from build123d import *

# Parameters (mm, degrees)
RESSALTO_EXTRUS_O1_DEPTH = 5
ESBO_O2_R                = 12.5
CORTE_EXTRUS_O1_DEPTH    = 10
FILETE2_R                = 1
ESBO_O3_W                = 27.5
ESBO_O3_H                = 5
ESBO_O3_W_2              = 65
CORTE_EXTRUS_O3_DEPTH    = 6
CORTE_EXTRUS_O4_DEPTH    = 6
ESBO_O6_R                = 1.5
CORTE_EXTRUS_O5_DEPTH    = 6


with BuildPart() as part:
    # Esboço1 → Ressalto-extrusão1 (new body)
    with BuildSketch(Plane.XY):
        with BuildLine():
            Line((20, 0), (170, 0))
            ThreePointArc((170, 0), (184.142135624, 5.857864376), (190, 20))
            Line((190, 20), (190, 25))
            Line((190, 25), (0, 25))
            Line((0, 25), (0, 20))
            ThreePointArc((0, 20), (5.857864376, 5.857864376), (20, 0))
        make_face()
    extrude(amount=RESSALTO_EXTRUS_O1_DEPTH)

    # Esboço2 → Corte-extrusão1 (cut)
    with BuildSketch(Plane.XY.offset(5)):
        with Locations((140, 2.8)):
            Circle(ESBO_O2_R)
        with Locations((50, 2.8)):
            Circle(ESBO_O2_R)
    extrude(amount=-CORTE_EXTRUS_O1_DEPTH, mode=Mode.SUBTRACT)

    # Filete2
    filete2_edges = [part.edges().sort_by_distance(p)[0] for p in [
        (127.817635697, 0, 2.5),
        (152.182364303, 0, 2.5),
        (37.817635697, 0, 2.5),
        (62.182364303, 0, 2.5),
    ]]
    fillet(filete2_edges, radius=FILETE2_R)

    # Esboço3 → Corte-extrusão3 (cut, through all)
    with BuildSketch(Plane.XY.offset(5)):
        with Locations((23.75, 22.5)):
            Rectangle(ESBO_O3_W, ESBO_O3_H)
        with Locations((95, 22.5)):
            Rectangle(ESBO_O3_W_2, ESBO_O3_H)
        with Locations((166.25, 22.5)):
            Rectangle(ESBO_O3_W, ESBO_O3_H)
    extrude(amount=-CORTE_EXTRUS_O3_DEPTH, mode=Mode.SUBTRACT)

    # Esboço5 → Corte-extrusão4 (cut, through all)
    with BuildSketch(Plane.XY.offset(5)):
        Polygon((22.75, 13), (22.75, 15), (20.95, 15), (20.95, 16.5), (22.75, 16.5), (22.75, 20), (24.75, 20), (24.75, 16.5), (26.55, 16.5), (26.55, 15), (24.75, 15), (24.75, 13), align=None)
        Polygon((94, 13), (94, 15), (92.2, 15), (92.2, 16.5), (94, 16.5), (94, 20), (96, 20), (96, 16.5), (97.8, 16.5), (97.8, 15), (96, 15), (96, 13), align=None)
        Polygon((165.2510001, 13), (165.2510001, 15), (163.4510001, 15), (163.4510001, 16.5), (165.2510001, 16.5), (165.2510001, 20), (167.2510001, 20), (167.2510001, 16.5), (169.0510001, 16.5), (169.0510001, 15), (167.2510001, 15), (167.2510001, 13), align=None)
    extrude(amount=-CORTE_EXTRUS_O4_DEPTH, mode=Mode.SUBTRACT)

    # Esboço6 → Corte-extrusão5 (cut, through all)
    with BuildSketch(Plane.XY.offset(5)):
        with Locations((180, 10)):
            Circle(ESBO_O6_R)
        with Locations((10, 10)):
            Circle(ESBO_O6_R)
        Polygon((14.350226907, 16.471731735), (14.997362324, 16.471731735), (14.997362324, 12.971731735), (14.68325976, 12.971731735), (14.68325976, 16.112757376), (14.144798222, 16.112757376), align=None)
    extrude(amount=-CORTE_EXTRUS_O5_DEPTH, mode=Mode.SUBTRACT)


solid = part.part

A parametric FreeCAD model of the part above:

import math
import FreeCAD as App
import Part
import Sketcher
Q = App.Units.Quantity


def edges_at(feature, points):
    """Names of the edges that pass closest to the given points."""
    edges = feature.Shape.Edges
    near = lambda p: min(range(len(edges)), key=lambda i: edges[i].distToShape(Part.Vertex(*p))[0])
    return sorted({f"Edge{near(p) + 1}" for p in points})


def add_polygon(sketch, points):
    """Adds a closed chain of lines whose ends are joined by coincident constraints."""
    first, n = sketch.GeometryCount, len(points)
    for a, b in zip(points, points[1:] + points[:1]):
        sketch.addGeometry(Part.LineSegment(App.Vector(*a, 0), App.Vector(*b, 0)), False)
    for i in range(n):
        sketch.addConstraint(Sketcher.Constraint("Coincident", first + i, 2, first + (i + 1) % n, 1))

doc = App.newDocument("Part")
body = doc.addObject("PartDesign::Body", "Body")

sketch1 = body.newObject("Sketcher::SketchObject", "Sketch")
sketch1.AttachmentSupport = (doc.getObject("XY_Plane"), [""])
sketch1.MapMode = "FlatFace"
sketch1.addGeometry(Part.LineSegment(App.Vector(20, 0, 0), App.Vector(170, 0, 0)), False)
sketch1.addGeometry(Part.ArcOfCircle(Part.Circle(App.Vector(170, 20, 0), App.Vector(0, 0, 1), 20), math.radians(-90), math.radians(0)), False)
sketch1.addGeometry(Part.LineSegment(App.Vector(190, 20, 0), App.Vector(190, 25, 0)), False)
sketch1.addGeometry(Part.LineSegment(App.Vector(190, 25, 0), App.Vector(0, 25, 0)), False)
sketch1.addGeometry(Part.LineSegment(App.Vector(0, 25, 0), App.Vector(0, 20, 0)), False)
sketch1.addGeometry(Part.ArcOfCircle(Part.Circle(App.Vector(20, 20, 0), App.Vector(0, 0, 1), 20), math.radians(180), math.radians(270)), False)
sketch1.addConstraint(Sketcher.Constraint("Tangent", 0, 2, 1, 1))
sketch1.addConstraint(Sketcher.Constraint("Tangent", 1, 2, 2, 1))
sketch1.addConstraint(Sketcher.Constraint("Coincident", 2, 2, 3, 1))
sketch1.addConstraint(Sketcher.Constraint("Coincident", 3, 2, 4, 1))
sketch1.addConstraint(Sketcher.Constraint("Tangent", 4, 2, 5, 1))
sketch1.addConstraint(Sketcher.Constraint("Tangent", 5, 2, 0, 1))
sketch1.addConstraint(Sketcher.Constraint("Horizontal", 0))
sketch1.addConstraint(Sketcher.Constraint("Vertical", 2))
sketch1.addConstraint(Sketcher.Constraint("Horizontal", 3))
sketch1.addConstraint(Sketcher.Constraint("Vertical", 4))
sketch1.addConstraint(Sketcher.Constraint("Equal", 1, 5))
sketch1.addConstraint(Sketcher.Constraint("PointOnObject", 0, 2, -1))
sketch1.addConstraint(Sketcher.Constraint("PointOnObject", 3, 2, -2))
sketch1.addConstraint(Sketcher.Constraint("Radius", 1, Q("20 mm")))
sketch1.addConstraint(Sketcher.Constraint("DistanceX", 0, 1, 0, 2, Q("150 mm")))
sketch1.addConstraint(Sketcher.Constraint("DistanceY", 2, 1, 2, 2, Q("5 mm")))
pad1 = body.newObject("PartDesign::Pad", "Pad")
pad1.Profile = sketch1
pad1.Length = 5

sketch2 = body.newObject("Sketcher::SketchObject", "Sketch001")
sketch2.AttachmentSupport = (doc.getObject("XY_Plane"), [""])
sketch2.MapMode = "FlatFace"
sketch2.AttachmentOffset = App.Placement(App.Vector(0, 0, 5), App.Rotation())
sketch2.addGeometry(Part.Circle(App.Vector(140, 2.8, 0), App.Vector(0, 0, 1), 12.5), False)
sketch2.addGeometry(Part.Circle(App.Vector(50, 2.8, 0), App.Vector(0, 0, 1), 12.5), False)
sketch2.addConstraint(Sketcher.Constraint("Equal", 0, 1))
sketch2.addConstraint(Sketcher.Constraint("Horizontal", 0, 3, 1, 3))
sketch2.addConstraint(Sketcher.Constraint("Diameter", 0, Q("25 mm")))
sketch2.addConstraint(Sketcher.Constraint("DistanceX", -1, 1, 0, 3, Q("140 mm")))
sketch2.addConstraint(Sketcher.Constraint("DistanceX", -1, 1, 1, 3, Q("50 mm")))
sketch2.addConstraint(Sketcher.Constraint("DistanceY", -1, 1, 0, 3, Q("2.8 mm")))
pocket1 = body.newObject("PartDesign::Pocket", "Pocket")
pocket1.Profile = sketch2
pocket1.Length = 10
doc.recompute()

fillet = body.newObject("PartDesign::Fillet", "Fillet")
fillet.Base = (pocket1, edges_at(pocket1, [
    (127.818, 0, 2.5),
    (152.182, 0, 2.5),
    (37.818, 0, 2.5),
    (62.182, 0, 2.5),
]))
fillet.Radius = 1

sketch3 = body.newObject("Sketcher::SketchObject", "Sketch002")
sketch3.AttachmentSupport = (doc.getObject("XY_Plane"), [""])
sketch3.MapMode = "FlatFace"
sketch3.AttachmentOffset = App.Placement(App.Vector(0, 0, 5), App.Rotation())
add_polygon(sketch3, [(10, 25), (10, 20), (37.5, 20), (37.5, 25)])
add_polygon(sketch3, [(62.5, 25), (62.5, 20), (127.5, 20), (127.5, 25)])
add_polygon(sketch3, [(152.5, 25), (152.5, 20), (180, 20), (180, 25)])
sketch3.addConstraint(Sketcher.Constraint("Vertical", 0))
sketch3.addConstraint(Sketcher.Constraint("Horizontal", 1))
sketch3.addConstraint(Sketcher.Constraint("Vertical", 2))
sketch3.addConstraint(Sketcher.Constraint("Horizontal", 3))
sketch3.addConstraint(Sketcher.Constraint("Vertical", 4))
sketch3.addConstraint(Sketcher.Constraint("Horizontal", 5))
sketch3.addConstraint(Sketcher.Constraint("Vertical", 6))
sketch3.addConstraint(Sketcher.Constraint("Horizontal", 7))
sketch3.addConstraint(Sketcher.Constraint("Vertical", 8))
sketch3.addConstraint(Sketcher.Constraint("Horizontal", 9))
sketch3.addConstraint(Sketcher.Constraint("Vertical", 10))
sketch3.addConstraint(Sketcher.Constraint("Horizontal", 11))
sketch3.addConstraint(Sketcher.Constraint("Horizontal", 1, 2, 4, 2))
sketch3.addConstraint(Sketcher.Constraint("Horizontal", 3, 2, 6, 2))
sketch3.addConstraint(Sketcher.Constraint("Horizontal", 5, 2, 8, 2))
sketch3.addConstraint(Sketcher.Constraint("Horizontal", 7, 2, 10, 2))
sketch3.addConstraint(Sketcher.Constraint("Equal", 3, 9))
sketch3.addConstraint(Sketcher.Constraint("DistanceX", 5, 1, 5, 2, Q("65 mm")))
sketch3.addConstraint(Sketcher.Constraint("DistanceY", 0, 2, 0, 1, Q("5 mm")))
sketch3.addConstraint(Sketcher.Constraint("DistanceX", 1, 1, 1, 2, Q("27.5 mm")))
sketch3.addConstraint(Sketcher.Constraint("DistanceX", -1, 1, 0, 2, Q("10 mm")))
sketch3.addConstraint(Sketcher.Constraint("DistanceY", -1, 1, 0, 2, Q("20 mm")))
sketch3.addConstraint(Sketcher.Constraint("DistanceX", -1, 1, 9, 2, Q("180 mm")))
sketch3.addConstraint(Sketcher.Constraint("DistanceX", 1, 2, 4, 2, Q("25 mm")))
pocket2 = body.newObject("PartDesign::Pocket", "Pocket001")
pocket2.Profile = sketch3
pocket2.Type = "ThroughAll"

sketch4 = body.newObject("Sketcher::SketchObject", "Sketch003")
sketch4.AttachmentSupport = (doc.getObject("XY_Plane"), [""])
sketch4.MapMode = "FlatFace"
sketch4.AttachmentOffset = App.Placement(App.Vector(0, 0, 5), App.Rotation())
add_polygon(sketch4, [(22.75, 15), (22.75, 13), (24.75, 13), (24.75, 15), (26.55, 15), (26.55, 16.5), (24.75, 16.5), (24.75, 20), (22.75, 20), (22.75, 16.5), (20.95, 16.5), (20.95, 15)])
add_polygon(sketch4, [(94, 15), (94, 13), (96, 13), (96, 15), (97.8, 15), (97.8, 16.5), (96, 16.5), (96, 20), (94, 20), (94, 16.5), (92.2, 16.5), (92.2, 15)])
add_polygon(sketch4, [(165.251, 15), (165.251, 13), (167.251, 13), (167.251, 15), (169.051, 15), (169.051, 16.5), (167.251, 16.5), (167.251, 20), (165.251, 20), (165.251, 16.5), (163.451, 16.5), (163.451, 15)])
sketch4.addConstraint(Sketcher.Constraint("Vertical", 0))
sketch4.addConstraint(Sketcher.Constraint("Horizontal", 1))
sketch4.addConstraint(Sketcher.Constraint("Vertical", 2))
sketch4.addConstraint(Sketcher.Constraint("Horizontal", 3))
sketch4.addConstraint(Sketcher.Constraint("Vertical", 4))
sketch4.addConstraint(Sketcher.Constraint("Horizontal", 5))
sketch4.addConstraint(Sketcher.Constraint("Vertical", 6))
sketch4.addConstraint(Sketcher.Constraint("Horizontal", 7))
sketch4.addConstraint(Sketcher.Constraint("Vertical", 8))
sketch4.addConstraint(Sketcher.Constraint("Horizontal", 9))
sketch4.addConstraint(Sketcher.Constraint("Vertical", 10))
sketch4.addConstraint(Sketcher.Constraint("Horizontal", 11))
sketch4.addConstraint(Sketcher.Constraint("Vertical", 12))
sketch4.addConstraint(Sketcher.Constraint("Horizontal", 13))
sketch4.addConstraint(Sketcher.Constraint("Vertical", 14))
sketch4.addConstraint(Sketcher.Constraint("Horizontal", 15))
sketch4.addConstraint(Sketcher.Constraint("Vertical", 16))
sketch4.addConstraint(Sketcher.Constraint("Horizontal", 17))
sketch4.addConstraint(Sketcher.Constraint("Vertical", 18))
sketch4.addConstraint(Sketcher.Constraint("Horizontal", 19))
sketch4.addConstraint(Sketcher.Constraint("Vertical", 20))
sketch4.addConstraint(Sketcher.Constraint("Horizontal", 21))
sketch4.addConstraint(Sketcher.Constraint("Vertical", 22))
sketch4.addConstraint(Sketcher.Constraint("Horizontal", 23))
sketch4.addConstraint(Sketcher.Constraint("Vertical", 24))
sketch4.addConstraint(Sketcher.Constraint("Horizontal", 25))
sketch4.addConstraint(Sketcher.Constraint("Vertical", 26))
sketch4.addConstraint(Sketcher.Constraint("Horizontal", 27))
sketch4.addConstraint(Sketcher.Constraint("Vertical", 28))
sketch4.addConstraint(Sketcher.Constraint("Horizontal", 29))
sketch4.addConstraint(Sketcher.Constraint("Vertical", 30))
sketch4.addConstraint(Sketcher.Constraint("Horizontal", 31))
sketch4.addConstraint(Sketcher.Constraint("Vertical", 32))
sketch4.addConstraint(Sketcher.Constraint("Horizontal", 33))
sketch4.addConstraint(Sketcher.Constraint("Vertical", 34))
sketch4.addConstraint(Sketcher.Constraint("Horizontal", 35))
sketch4.addConstraint(Sketcher.Constraint("Horizontal", 5, 2, 8, 2))
sketch4.addConstraint(Sketcher.Constraint("Horizontal", 3, 2, 10, 2))
sketch4.addConstraint(Sketcher.Constraint("Horizontal", 1, 2, 12, 2))
sketch4.addConstraint(Sketcher.Constraint("Horizontal", 11, 2, 14, 2))
sketch4.addConstraint(Sketcher.Constraint("Horizontal", 9, 2, 16, 2))
sketch4.addConstraint(Sketcher.Constraint("Horizontal", 7, 2, 18, 2))
sketch4.addConstraint(Sketcher.Constraint("Horizontal", 17, 2, 20, 2))
sketch4.addConstraint(Sketcher.Constraint("Horizontal", 15, 2, 22, 2))
sketch4.addConstraint(Sketcher.Constraint("Horizontal", 13, 2, 24, 2))
sketch4.addConstraint(Sketcher.Constraint("Horizontal", 23, 2, 26, 2))
sketch4.addConstraint(Sketcher.Constraint("Horizontal", 21, 2, 28, 2))
sketch4.addConstraint(Sketcher.Constraint("Horizontal", 19, 2, 30, 2))
sketch4.addConstraint(Sketcher.Constraint("Horizontal", 29, 2, 32, 2))
sketch4.addConstraint(Sketcher.Constraint("Horizontal", 27, 2, 34, 2))
sketch4.addConstraint(Sketcher.Constraint("Vertical", 2, 2, 5, 2))
sketch4.addConstraint(Sketcher.Constraint("Vertical", 0, 2, 7, 2))
sketch4.addConstraint(Sketcher.Constraint("Vertical", 14, 2, 17, 2))
sketch4.addConstraint(Sketcher.Constraint("Vertical", 12, 2, 19, 2))
sketch4.addConstraint(Sketcher.Constraint("Vertical", 26, 2, 29, 2))
sketch4.addConstraint(Sketcher.Constraint("Vertical", 24, 2, 31, 2))
sketch4.addConstraint(Sketcher.Constraint("Equal", 5, 9))
sketch4.addConstraint(Sketcher.Constraint("Equal", 7, 13))
sketch4.addConstraint(Sketcher.Constraint("Equal", 11, 15))
sketch4.addConstraint(Sketcher.Constraint("Equal", 17, 21))
sketch4.addConstraint(Sketcher.Constraint("Equal", 19, 25))
sketch4.addConstraint(Sketcher.Constraint("Equal", 23, 27))
sketch4.addConstraint(Sketcher.Constraint("Equal", 29, 33))
sketch4.addConstraint(Sketcher.Constraint("Equal", 31, 0))
sketch4.addConstraint(Sketcher.Constraint("DistanceX", 1, 1, 1, 2, Q("2 mm")))
sketch4.addConstraint(Sketcher.Constraint("DistanceX", 3, 1, 3, 2, Q("1.8 mm")))
sketch4.addConstraint(Sketcher.Constraint("DistanceY", 4, 1, 4, 2, Q("1.5 mm")))
sketch4.addConstraint(Sketcher.Constraint("DistanceY", 6, 1, 6, 2, Q("3.5 mm")))
sketch4.addConstraint(Sketcher.Constraint("DistanceY", -1, 1, 0, 2, Q("13 mm")))
sketch4.addConstraint(Sketcher.Constraint("DistanceX", -1, 1, 12, 2, Q("94 mm")))
sketch4.addConstraint(Sketcher.Constraint("DistanceX", -1, 1, 0, 2, Q("22.75 mm")))
sketch4.addConstraint(Sketcher.Constraint("DistanceX", -1, 1, 24, 2, Q("165.251 mm")))
pocket3 = body.newObject("PartDesign::Pocket", "Pocket002")
pocket3.Profile = sketch4
pocket3.Type = "ThroughAll"

sketch5 = body.newObject("Sketcher::SketchObject", "Sketch004")
sketch5.AttachmentSupport = (doc.getObject("XY_Plane"), [""])
sketch5.MapMode = "FlatFace"
sketch5.AttachmentOffset = App.Placement(App.Vector(0, 0, 5), App.Rotation())
sketch5.addGeometry(Part.Circle(App.Vector(180, 10, 0), App.Vector(0, 0, 1), 1.5), False)
sketch5.addGeometry(Part.Circle(App.Vector(10, 10, 0), App.Vector(0, 0, 1), 1.5), False)
add_polygon(sketch5, [(14.997362, 16.471732), (14.350227, 16.471732), (14.144798, 16.112757), (14.68326, 16.112757), (14.68326, 12.971732), (14.997362, 12.971732)])
sketch5.addConstraint(Sketcher.Constraint("Horizontal", 2))
sketch5.addConstraint(Sketcher.Constraint("Horizontal", 4))
sketch5.addConstraint(Sketcher.Constraint("Vertical", 5))
sketch5.addConstraint(Sketcher.Constraint("Horizontal", 6))
sketch5.addConstraint(Sketcher.Constraint("Vertical", 7))
sketch5.addConstraint(Sketcher.Constraint("Equal", 0, 1))
sketch5.addConstraint(Sketcher.Constraint("Horizontal", 0, 3, 1, 3))
sketch5.addConstraint(Sketcher.Constraint("Diameter", 0, Q("3 mm")))
sketch5.addConstraint(Sketcher.Constraint("DistanceY", 7, 1, 7, 2, Q("3.5 mm")))
sketch5.addConstraint(Sketcher.Constraint("DistanceX", -1, 1, 0, 3, Q("180 mm")))
sketch5.addConstraint(Sketcher.Constraint("DistanceY", -1, 1, 0, 3, Q("10 mm")))
sketch5.addConstraint(Sketcher.Constraint("DistanceX", -1, 1, 1, 3, Q("10 mm")))
sketch5.addConstraint(Sketcher.Constraint("Distance", 3, Q("0.413598 mm")))
sketch5.addConstraint(Sketcher.Constraint("DistanceX", 4, 1, 4, 2, Q("0.538462 mm")))
sketch5.addConstraint(Sketcher.Constraint("DistanceX", -1, 1, 3, 2, Q("14.144798 mm")))
sketch5.addConstraint(Sketcher.Constraint("DistanceX", 2, 2, 2, 1, Q("0.647135 mm")))
sketch5.addConstraint(Sketcher.Constraint("DistanceX", 6, 1, 6, 2, Q("0.314103 mm")))
sketch5.addConstraint(Sketcher.Constraint("DistanceY", -1, 1, 2, 2, Q("16.471732 mm")))
pocket4 = body.newObject("PartDesign::Pocket", "Pocket003")
pocket4.Profile = sketch5
pocket4.Type = "ThroughAll"

doc.recompute()
